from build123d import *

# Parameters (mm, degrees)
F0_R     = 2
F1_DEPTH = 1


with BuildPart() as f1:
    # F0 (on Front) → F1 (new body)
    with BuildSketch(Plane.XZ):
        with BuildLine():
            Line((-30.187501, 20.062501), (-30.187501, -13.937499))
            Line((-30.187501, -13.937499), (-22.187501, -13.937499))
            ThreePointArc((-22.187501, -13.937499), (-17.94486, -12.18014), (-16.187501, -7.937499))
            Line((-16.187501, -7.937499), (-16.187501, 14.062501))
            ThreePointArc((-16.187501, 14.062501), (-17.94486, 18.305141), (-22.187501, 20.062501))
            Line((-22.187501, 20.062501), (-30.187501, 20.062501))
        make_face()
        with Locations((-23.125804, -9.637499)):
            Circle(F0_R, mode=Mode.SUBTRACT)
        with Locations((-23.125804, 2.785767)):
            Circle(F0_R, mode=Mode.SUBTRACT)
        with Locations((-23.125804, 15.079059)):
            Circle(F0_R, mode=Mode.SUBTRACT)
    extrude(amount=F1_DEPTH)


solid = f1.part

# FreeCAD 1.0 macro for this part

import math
import FreeCAD as App
import Part
import Sketcher

V = App.Vector
Q = App.Units.Quantity

doc = App.newDocument("Part")
body = doc.addObject("PartDesign::Body", "Body")

# Sketch on XZ plane
sketch1 = body.newObject("Sketcher::SketchObject", "Sketch")
sketch1.AttachmentSupport = (doc.getObject("XZ_Plane"), [""])
sketch1.MapMode = "FlatFace"
sketch1.addGeometry([
    Part.LineSegment(V(-30.2, 20.1, 0), V(-30.2, -13.9, 0)),  # 0
    Part.LineSegment(V(-30.2, -13.9, 0), V(-22.2, -13.9, 0)),  # 1
    Part.ArcOfCircle(Part.Circle(V(-22.2, -7.9, 0), V(0, 0, 1), 6), math.radians(-90), math.radians(0)),  # 2
    Part.LineSegment(V(-16.2, -7.9, 0), V(-16.2, 14.1, 0)),  # 3
    Part.ArcOfCircle(Part.Circle(V(-22.2, 14.1, 0), V(0, 0, 1), 6), math.radians(0), math.radians(90)),  # 4
    Part.LineSegment(V(-22.2, 20.1, 0), V(-30.2, 20.1, 0)),  # 5
    Part.Circle(V(-23.1, -9.6, 0), V(0, 0, 1), 2),  # 6
    Part.Circle(V(-23.1, 2.8, 0), V(0, 0, 1), 2),  # 7
    Part.Circle(V(-23.1, 15.1, 0), V(0, 0, 1), 2),  # 8
], False)
sketch1.addConstraint([
    Sketcher.Constraint("Coincident", 0, 2, 1, 1),
    Sketcher.Constraint("Tangent", 1, 2, 2, 1),
    Sketcher.Constraint("Tangent", 2, 2, 3, 1),
    Sketcher.Constraint("Tangent", 3, 2, 4, 1),
    Sketcher.Constraint("Tangent", 4, 2, 5, 1),
    Sketcher.Constraint("Coincident", 5, 2, 0, 1),
    Sketcher.Constraint("Vertical", 0),
    Sketcher.Constraint("Horizontal", 1),
    Sketcher.Constraint("Vertical", 3),
    Sketcher.Constraint("Horizontal", 5),
    Sketcher.Constraint("Equal", 2, 4),
    Sketcher.Constraint("Equal", 6, 7),
    Sketcher.Constraint("Equal", 7, 8),
    Sketcher.Constraint("Vertical", 6, 3, 7, 3),
    Sketcher.Constraint("Vertical", 7, 3, 8, 3),
    Sketcher.Constraint("Diameter", 6, Q("4 mm")),
    Sketcher.Constraint("Radius", 2, Q("5.999999 mm")),
    Sketcher.Constraint("DistanceX", 1, 1, 1, 2, Q("8 mm")),
    Sketcher.Constraint("DistanceY", 0, 2, 0, 1, Q("34 mm")),
    Sketcher.Constraint("DistanceY", 6, 3, 2, 3, Q("1.699999 mm")),
    Sketcher.Constraint("DistanceX", 2, 3, -1, 1, Q("22.1875 mm")),
    Sketcher.Constraint("DistanceY", 2, 3, -1, 1, Q("7.9375 mm")),
    Sketcher.Constraint("DistanceY", -1, 1, 8, 3, Q("15.079059 mm")),
    Sketcher.Constraint("DistanceX", 6, 3, -1, 1, Q("23.125804 mm")),
    Sketcher.Constraint("DistanceY", -1, 1, 7, 3, Q("2.785767 mm")),
])
pad1 = body.newObject("PartDesign::Pad", "Pad")
pad1.Profile = sketch1
pad1.Length = 1

doc.recompute()
